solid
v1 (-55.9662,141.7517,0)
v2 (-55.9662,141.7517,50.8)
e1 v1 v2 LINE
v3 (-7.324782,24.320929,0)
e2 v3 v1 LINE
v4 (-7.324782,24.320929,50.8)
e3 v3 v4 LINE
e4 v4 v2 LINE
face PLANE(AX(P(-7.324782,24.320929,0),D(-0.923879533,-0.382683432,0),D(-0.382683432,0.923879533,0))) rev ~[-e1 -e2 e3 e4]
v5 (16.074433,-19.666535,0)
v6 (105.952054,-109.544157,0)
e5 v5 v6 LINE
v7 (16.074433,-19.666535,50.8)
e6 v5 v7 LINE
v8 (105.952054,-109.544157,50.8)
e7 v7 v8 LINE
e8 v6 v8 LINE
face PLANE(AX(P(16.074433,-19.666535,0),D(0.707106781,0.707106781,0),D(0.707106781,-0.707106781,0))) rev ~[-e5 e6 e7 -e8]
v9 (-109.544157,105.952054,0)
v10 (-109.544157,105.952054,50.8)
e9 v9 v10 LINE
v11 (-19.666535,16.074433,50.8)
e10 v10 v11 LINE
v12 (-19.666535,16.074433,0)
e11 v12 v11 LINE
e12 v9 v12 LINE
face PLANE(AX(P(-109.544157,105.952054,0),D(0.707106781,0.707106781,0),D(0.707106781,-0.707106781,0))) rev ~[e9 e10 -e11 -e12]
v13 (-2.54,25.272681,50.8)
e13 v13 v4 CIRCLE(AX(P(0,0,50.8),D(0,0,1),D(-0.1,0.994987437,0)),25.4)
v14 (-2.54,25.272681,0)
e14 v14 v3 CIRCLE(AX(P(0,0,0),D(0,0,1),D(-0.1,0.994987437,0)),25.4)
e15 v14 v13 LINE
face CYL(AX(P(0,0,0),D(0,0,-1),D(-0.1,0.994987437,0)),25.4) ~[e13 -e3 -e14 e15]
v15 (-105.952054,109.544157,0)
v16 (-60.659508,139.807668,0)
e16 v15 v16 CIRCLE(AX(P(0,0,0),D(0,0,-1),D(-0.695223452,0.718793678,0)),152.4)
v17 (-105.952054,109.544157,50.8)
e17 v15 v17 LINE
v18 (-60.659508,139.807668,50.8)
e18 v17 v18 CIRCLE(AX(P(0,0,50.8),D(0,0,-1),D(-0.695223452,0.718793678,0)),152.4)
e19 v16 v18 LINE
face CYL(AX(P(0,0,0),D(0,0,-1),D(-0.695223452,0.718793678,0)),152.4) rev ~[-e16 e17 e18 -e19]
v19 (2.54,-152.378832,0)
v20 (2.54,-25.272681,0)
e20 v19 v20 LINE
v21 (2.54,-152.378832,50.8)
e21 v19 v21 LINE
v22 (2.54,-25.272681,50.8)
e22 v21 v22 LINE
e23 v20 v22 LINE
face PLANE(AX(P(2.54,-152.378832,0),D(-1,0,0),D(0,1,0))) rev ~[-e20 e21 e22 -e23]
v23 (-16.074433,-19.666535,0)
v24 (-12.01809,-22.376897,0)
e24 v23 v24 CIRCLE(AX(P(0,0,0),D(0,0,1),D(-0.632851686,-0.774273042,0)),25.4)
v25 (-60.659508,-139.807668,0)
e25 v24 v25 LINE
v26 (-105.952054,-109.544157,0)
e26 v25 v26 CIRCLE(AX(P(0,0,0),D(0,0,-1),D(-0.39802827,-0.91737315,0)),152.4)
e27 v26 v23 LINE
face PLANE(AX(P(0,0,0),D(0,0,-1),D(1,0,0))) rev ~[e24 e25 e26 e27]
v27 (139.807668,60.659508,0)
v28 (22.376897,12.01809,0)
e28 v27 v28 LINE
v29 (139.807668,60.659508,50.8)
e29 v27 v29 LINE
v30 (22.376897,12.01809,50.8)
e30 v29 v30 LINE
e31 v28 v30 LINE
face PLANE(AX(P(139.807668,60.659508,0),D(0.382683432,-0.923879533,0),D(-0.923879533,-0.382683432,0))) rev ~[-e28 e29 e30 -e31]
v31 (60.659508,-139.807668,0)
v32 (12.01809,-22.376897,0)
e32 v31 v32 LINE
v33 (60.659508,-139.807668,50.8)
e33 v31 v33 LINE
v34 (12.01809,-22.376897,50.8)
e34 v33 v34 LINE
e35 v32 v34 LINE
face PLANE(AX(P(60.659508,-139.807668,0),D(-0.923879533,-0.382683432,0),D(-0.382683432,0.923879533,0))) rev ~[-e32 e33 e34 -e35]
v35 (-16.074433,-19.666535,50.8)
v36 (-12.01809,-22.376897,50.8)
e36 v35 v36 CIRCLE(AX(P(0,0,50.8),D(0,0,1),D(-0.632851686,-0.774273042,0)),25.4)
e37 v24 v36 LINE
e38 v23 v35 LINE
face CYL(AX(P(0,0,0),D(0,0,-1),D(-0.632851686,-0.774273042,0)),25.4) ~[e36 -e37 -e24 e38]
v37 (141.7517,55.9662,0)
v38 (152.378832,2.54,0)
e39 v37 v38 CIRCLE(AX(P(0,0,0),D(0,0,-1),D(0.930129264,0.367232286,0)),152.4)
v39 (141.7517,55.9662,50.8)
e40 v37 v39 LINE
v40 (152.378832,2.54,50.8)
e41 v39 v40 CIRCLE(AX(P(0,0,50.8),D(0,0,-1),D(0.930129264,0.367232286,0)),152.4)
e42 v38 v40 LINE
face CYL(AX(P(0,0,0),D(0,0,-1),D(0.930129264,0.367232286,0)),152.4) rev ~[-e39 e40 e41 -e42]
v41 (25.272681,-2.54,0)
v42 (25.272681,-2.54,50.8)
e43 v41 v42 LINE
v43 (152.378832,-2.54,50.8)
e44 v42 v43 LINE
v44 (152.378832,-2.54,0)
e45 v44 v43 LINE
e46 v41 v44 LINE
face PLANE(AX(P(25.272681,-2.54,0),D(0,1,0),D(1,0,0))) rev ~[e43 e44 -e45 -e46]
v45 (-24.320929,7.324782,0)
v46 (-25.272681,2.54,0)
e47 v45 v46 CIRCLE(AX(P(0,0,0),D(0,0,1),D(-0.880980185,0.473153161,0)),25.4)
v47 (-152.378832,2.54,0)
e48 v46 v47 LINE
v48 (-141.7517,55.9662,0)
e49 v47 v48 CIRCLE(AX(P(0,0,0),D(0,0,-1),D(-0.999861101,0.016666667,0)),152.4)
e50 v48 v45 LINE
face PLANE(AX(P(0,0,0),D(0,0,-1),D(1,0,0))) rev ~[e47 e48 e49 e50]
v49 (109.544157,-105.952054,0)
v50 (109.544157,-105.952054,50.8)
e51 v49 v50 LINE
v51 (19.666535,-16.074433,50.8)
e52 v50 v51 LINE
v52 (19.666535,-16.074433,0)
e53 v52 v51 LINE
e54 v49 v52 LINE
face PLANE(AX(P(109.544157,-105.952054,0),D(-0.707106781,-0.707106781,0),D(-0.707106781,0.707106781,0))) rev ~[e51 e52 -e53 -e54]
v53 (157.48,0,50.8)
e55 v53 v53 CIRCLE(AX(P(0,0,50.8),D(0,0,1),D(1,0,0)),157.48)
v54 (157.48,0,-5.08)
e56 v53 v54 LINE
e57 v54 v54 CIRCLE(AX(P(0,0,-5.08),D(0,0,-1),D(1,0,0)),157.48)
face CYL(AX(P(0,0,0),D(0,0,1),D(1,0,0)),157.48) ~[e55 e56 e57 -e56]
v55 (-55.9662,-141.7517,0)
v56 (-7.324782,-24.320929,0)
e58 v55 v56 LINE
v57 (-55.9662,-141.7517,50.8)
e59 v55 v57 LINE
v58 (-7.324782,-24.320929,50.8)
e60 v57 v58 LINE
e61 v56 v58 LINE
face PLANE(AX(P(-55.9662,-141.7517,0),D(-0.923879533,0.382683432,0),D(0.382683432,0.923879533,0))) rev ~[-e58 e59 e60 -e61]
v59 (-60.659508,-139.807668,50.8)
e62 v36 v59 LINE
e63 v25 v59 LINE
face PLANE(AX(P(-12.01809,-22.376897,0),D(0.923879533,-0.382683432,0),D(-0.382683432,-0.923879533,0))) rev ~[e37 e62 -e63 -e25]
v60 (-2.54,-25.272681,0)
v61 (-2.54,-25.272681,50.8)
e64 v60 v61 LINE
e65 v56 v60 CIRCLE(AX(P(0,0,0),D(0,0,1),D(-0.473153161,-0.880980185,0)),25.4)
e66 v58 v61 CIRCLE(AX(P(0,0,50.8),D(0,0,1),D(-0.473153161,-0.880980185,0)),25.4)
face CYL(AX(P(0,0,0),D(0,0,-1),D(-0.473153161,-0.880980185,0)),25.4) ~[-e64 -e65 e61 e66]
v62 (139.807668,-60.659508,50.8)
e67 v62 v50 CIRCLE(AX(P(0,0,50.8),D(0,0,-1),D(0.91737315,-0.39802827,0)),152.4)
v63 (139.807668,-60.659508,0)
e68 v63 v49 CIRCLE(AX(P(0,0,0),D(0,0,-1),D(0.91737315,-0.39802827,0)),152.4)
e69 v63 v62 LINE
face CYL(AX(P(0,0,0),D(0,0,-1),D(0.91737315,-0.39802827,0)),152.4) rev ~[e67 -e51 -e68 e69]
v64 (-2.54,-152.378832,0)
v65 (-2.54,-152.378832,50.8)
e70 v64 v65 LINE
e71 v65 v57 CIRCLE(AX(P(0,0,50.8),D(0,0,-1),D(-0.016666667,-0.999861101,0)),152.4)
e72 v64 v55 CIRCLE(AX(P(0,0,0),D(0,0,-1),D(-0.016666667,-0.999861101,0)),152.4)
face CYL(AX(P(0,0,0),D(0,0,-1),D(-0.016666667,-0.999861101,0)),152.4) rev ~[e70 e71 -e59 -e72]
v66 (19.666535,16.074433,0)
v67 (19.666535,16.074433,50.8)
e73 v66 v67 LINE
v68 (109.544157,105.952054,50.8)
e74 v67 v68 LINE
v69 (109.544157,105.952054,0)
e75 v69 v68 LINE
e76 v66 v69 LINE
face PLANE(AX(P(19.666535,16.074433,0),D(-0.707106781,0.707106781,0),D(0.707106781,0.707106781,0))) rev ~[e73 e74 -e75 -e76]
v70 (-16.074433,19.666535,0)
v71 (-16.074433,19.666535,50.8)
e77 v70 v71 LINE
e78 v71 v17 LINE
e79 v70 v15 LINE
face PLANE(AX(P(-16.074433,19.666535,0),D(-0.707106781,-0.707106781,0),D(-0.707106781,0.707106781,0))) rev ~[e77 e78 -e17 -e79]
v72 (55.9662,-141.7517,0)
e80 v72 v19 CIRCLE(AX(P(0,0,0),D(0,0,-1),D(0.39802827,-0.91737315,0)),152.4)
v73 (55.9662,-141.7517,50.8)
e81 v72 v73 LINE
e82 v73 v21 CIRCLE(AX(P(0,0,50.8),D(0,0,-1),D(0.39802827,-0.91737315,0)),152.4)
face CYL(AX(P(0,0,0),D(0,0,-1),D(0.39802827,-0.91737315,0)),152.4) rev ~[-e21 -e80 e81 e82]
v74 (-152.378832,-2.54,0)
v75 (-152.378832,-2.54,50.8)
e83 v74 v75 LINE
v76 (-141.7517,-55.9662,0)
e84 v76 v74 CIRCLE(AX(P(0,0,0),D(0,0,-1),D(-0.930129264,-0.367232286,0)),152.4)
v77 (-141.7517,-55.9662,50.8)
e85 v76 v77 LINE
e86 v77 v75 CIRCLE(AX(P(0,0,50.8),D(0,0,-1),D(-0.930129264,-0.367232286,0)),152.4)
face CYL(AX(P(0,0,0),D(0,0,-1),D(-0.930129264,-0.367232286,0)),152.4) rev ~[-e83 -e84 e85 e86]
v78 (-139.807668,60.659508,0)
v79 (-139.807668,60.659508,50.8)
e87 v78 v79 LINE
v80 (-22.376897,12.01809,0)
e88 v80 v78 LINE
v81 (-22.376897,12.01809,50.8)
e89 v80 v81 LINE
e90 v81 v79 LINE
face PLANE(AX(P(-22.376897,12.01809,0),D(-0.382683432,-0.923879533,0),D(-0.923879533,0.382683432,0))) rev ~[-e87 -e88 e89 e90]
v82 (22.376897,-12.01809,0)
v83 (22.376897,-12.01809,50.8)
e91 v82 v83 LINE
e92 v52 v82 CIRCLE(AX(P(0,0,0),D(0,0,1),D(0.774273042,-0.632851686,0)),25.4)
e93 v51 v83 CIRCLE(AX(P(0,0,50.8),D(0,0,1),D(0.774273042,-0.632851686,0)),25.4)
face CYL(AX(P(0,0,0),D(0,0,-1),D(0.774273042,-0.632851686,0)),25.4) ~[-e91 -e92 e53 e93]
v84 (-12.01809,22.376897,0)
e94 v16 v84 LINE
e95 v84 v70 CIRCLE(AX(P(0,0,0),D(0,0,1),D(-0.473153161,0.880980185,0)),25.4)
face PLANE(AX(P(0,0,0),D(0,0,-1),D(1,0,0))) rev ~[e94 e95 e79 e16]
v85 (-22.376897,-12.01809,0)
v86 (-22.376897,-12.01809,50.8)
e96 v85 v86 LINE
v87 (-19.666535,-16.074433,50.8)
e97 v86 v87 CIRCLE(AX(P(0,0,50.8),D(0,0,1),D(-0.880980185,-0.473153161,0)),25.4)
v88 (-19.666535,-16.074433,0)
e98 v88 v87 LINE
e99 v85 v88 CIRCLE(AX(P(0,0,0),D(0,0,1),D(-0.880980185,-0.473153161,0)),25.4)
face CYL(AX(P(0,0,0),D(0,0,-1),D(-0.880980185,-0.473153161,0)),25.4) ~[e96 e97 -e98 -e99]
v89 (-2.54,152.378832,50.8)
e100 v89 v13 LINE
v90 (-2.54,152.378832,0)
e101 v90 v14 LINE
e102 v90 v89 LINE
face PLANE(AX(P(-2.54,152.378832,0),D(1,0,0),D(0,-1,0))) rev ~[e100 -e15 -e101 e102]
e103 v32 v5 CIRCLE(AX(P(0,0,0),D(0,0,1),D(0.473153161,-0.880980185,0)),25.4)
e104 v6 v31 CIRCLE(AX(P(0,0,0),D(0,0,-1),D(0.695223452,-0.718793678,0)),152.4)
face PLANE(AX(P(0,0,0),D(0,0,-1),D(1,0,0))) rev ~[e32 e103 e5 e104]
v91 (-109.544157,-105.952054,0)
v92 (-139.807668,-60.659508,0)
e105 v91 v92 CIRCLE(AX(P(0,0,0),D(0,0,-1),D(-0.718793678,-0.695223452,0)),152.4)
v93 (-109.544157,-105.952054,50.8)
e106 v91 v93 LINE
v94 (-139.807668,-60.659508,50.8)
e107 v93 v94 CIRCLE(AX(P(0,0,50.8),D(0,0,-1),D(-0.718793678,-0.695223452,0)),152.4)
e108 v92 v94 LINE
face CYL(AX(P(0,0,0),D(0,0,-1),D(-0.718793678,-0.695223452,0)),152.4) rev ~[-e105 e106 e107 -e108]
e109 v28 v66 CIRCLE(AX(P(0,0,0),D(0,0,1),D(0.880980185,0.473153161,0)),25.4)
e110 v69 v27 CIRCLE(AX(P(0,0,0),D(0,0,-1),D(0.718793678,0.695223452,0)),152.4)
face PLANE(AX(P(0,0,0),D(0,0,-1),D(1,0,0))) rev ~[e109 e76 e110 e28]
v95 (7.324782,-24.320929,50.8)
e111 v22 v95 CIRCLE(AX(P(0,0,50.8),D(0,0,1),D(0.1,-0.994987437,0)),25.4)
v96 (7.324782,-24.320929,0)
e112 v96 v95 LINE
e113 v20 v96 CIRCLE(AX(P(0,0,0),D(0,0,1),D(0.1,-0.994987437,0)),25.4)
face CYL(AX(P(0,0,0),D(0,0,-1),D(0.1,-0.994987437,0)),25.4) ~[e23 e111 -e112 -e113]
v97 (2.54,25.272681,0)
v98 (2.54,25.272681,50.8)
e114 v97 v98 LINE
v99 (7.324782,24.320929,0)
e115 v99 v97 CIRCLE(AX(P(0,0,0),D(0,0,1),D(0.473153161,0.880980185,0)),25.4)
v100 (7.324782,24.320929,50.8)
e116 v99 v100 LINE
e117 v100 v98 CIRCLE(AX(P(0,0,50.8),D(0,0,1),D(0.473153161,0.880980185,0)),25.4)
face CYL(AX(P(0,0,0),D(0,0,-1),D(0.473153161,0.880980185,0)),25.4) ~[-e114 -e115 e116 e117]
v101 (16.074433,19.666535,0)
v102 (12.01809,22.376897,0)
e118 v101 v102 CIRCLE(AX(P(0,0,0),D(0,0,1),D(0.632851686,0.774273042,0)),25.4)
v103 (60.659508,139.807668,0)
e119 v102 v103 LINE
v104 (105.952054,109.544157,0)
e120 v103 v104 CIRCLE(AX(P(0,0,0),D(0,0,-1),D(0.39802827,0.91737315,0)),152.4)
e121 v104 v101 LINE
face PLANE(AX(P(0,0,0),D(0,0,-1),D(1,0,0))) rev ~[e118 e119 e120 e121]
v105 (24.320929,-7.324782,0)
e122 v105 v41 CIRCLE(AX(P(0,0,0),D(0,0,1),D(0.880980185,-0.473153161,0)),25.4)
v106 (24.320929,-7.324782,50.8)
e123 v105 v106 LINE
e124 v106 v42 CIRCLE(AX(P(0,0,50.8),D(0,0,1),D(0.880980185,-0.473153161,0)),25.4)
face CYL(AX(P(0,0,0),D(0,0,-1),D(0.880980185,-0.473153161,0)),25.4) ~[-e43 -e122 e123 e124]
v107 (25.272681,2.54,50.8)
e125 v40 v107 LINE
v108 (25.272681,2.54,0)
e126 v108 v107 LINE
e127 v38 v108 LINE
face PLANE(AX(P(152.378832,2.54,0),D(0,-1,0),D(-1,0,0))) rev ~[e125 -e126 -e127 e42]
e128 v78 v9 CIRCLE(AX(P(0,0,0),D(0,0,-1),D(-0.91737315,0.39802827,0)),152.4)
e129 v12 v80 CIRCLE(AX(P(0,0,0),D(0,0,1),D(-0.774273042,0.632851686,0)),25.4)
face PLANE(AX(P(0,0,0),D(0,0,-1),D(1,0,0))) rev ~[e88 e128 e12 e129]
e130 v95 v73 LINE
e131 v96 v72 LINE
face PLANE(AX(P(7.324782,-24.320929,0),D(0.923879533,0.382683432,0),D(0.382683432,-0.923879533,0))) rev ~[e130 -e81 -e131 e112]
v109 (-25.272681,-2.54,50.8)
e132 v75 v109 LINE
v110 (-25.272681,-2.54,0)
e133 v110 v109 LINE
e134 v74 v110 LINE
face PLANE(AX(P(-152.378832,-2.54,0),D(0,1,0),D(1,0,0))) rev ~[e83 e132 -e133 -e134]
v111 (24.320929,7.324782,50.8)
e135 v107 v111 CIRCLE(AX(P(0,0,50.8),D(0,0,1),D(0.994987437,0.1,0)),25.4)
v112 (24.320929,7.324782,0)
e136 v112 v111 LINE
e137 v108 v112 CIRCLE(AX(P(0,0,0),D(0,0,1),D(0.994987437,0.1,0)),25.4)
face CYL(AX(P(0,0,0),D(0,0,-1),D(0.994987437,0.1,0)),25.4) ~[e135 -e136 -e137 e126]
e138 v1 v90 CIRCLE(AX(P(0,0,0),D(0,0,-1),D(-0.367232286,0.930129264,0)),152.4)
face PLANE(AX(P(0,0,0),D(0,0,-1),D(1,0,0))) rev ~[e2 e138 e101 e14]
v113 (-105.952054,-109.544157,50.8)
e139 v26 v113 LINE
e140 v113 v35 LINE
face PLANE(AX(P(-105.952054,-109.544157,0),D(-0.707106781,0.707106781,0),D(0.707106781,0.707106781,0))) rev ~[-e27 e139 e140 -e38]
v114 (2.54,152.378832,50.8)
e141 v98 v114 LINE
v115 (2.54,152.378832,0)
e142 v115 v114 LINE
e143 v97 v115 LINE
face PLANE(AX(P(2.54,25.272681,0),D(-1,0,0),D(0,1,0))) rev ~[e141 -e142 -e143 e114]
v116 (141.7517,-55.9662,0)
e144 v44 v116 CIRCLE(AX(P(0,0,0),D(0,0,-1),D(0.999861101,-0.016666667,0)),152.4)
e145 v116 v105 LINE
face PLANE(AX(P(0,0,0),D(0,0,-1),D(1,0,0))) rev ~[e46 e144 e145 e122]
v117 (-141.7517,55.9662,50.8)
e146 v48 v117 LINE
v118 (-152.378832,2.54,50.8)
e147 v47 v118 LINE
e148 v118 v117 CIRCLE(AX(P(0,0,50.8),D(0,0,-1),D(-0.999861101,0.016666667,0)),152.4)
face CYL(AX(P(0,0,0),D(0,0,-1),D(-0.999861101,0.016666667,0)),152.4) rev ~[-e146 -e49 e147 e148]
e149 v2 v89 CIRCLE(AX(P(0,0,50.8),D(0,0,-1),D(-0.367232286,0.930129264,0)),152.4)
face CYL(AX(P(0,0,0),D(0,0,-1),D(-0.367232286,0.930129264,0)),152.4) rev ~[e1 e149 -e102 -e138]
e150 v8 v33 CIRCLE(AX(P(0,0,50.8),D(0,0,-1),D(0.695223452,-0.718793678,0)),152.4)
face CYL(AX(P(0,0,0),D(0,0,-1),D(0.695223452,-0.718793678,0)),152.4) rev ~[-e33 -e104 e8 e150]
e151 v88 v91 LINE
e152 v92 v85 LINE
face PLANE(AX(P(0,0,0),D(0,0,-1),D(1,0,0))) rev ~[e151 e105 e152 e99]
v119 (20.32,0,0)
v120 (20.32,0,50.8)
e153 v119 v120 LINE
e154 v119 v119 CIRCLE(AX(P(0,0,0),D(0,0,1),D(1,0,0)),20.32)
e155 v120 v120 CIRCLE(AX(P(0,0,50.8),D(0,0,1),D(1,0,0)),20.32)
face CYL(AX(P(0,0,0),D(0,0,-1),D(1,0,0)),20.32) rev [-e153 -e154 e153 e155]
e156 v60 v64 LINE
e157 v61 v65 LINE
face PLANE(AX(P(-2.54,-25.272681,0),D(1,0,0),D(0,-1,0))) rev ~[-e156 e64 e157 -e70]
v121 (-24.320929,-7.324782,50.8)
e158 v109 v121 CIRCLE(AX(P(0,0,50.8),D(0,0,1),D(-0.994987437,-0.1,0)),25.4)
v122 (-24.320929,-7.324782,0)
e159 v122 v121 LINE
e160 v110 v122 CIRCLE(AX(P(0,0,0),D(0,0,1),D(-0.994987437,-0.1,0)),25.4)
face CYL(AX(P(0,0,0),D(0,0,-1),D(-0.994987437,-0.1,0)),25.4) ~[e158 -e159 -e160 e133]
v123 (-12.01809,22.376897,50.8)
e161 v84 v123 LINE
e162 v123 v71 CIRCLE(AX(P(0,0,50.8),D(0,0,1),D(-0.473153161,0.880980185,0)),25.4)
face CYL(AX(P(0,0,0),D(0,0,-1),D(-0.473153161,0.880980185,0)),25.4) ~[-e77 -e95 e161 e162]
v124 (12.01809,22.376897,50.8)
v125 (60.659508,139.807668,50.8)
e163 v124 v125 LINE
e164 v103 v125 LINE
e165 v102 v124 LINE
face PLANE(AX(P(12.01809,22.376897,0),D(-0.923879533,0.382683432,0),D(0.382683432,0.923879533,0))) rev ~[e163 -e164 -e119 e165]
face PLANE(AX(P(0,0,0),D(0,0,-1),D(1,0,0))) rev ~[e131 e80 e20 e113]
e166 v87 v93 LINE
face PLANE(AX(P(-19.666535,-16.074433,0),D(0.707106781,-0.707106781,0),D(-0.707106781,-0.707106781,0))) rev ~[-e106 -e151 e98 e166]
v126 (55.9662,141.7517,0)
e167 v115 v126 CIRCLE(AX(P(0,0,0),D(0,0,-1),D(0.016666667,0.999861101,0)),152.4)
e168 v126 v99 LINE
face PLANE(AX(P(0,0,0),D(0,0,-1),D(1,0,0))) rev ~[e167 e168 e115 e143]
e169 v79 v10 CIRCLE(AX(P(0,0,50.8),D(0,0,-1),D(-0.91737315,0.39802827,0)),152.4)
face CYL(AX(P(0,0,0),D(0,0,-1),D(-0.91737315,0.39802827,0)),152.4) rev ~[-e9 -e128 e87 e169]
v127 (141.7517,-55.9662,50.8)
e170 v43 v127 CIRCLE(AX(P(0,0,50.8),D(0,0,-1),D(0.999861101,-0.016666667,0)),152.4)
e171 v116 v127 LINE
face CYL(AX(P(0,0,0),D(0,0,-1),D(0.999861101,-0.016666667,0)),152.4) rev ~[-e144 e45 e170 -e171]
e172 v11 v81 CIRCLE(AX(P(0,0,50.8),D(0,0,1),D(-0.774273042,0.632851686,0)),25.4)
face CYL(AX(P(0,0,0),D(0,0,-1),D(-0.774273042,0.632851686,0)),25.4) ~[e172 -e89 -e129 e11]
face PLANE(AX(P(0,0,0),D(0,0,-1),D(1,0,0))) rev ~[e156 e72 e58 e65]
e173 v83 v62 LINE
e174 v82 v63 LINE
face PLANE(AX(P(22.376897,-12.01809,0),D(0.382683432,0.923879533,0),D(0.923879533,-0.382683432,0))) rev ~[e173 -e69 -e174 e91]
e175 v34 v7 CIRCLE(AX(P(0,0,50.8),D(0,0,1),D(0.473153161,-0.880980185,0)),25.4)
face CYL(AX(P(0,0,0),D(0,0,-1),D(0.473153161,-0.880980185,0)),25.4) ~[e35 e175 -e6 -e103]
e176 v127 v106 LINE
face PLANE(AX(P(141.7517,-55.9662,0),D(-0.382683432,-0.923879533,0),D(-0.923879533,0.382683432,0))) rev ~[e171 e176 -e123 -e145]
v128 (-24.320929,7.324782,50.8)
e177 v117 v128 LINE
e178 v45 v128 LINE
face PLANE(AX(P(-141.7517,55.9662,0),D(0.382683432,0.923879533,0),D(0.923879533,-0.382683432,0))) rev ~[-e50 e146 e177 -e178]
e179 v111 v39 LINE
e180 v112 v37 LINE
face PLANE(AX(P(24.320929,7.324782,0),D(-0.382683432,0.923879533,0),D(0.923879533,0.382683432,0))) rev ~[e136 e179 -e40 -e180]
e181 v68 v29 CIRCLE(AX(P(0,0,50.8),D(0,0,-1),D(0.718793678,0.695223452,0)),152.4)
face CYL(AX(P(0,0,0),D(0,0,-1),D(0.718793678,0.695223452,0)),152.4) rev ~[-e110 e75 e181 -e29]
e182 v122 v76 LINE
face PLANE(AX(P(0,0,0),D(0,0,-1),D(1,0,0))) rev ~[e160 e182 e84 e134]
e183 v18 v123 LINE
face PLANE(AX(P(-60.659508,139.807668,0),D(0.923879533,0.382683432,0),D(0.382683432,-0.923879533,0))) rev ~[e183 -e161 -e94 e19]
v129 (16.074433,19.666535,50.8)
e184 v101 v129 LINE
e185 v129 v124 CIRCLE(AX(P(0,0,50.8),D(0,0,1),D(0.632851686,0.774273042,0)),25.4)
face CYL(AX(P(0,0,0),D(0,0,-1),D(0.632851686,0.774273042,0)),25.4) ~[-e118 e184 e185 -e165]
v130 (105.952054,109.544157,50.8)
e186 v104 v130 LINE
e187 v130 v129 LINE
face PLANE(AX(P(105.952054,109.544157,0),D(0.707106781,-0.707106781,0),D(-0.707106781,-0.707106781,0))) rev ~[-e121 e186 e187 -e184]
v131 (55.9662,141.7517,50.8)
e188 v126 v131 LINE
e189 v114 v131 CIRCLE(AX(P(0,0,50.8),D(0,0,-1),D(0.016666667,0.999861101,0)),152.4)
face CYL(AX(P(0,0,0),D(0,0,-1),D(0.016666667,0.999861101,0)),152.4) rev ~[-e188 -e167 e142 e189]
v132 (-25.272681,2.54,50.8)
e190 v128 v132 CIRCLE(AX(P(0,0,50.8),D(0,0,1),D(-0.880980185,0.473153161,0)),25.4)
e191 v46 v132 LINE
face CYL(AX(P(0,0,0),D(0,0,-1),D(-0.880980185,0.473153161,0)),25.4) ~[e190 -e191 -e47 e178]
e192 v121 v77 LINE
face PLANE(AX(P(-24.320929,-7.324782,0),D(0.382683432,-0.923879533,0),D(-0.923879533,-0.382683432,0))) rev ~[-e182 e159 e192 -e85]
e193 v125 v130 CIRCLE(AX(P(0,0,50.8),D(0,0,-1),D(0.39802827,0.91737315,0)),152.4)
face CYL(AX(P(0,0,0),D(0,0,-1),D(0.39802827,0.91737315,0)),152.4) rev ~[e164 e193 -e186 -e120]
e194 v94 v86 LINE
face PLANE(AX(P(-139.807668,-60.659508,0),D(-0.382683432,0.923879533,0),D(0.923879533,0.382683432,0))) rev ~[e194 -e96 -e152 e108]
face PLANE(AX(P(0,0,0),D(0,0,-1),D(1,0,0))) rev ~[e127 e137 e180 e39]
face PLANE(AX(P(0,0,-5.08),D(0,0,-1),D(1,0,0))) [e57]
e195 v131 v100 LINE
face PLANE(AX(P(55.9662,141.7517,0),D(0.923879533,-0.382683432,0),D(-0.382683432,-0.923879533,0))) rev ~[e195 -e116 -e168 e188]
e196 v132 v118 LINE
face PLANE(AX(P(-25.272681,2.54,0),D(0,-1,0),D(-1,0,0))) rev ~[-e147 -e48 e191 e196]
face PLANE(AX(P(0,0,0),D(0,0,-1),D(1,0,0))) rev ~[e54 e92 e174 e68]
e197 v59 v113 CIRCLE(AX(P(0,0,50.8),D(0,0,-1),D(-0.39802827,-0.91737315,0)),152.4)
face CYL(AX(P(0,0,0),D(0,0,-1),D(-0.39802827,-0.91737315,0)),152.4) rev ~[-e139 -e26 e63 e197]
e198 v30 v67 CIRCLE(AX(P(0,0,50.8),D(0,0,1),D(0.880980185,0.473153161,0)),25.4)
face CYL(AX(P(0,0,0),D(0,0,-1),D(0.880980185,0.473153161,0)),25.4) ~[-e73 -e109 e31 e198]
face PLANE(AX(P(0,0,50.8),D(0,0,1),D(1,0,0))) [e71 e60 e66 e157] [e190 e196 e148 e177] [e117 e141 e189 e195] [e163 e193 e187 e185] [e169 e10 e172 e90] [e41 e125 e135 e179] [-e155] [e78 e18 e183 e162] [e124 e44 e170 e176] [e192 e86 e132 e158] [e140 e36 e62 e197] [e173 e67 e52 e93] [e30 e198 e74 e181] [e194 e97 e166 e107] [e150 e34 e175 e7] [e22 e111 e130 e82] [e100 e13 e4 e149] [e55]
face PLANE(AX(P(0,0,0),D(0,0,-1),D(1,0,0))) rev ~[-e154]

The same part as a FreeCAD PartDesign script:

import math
import FreeCAD as App
import Part
import Sketcher

V = App.Vector
Q = App.Units.Quantity

doc = App.newDocument("Part")
params = doc.addObject("Spreadsheet::Sheet", "Params")
for row, (alias, value) in enumerate([
    ("sketch1_radius", "6 in"),
    ("sketch1_radius2", "1 in"),
    ("sketch1_diameter", "12.4 in"),
    ("sketch1_diameter2", "1.6 in"),
    ("pad1_length", "2 in"),
    ("sketch2_diameter", "12.4 in"),
    ("pad2_length", "0.2 in"),
], start=1):
    params.set(f"A{row}", alias)
    params.set(f"B{row}", "=" + value)
    params.setAlias(f"B{row}", alias)

body = doc.addObject("PartDesign::Body", "Body")

sketch1 = body.newObject("Sketcher::SketchObject", "Sketch")
sketch1.AttachmentSupport = (doc.getObject("XY_Plane"), [""])
sketch1.MapMode = "FlatFace"
sketch1.addGeometry([
    Part.Circle(V(0, 0, 0), V(0, 0, 1), 157.5),
    Part.LineSegment(V(-12, -22.4, 0), V(-60.7, -139.8, 0)),
    Part.ArcOfCircle(Part.Circle(V(0, 0, 0), V(0, 0, 1), 152.4), math.radians(-134), math.radians(-113)),
    Part.LineSegment(V(-106, -109.5, 0), V(-16.1, -19.7, 0)),
    Part.ArcOfCircle(Part.Circle(V(0, 0, 0), V(0, 0, 1), 25.4), math.radians(-129.26), math.radians(-118.24)),
    Part.LineSegment(V(-2.5, -25.3, 0), V(-2.5, -152.4, 0)),
    Part.ArcOfCircle(Part.Circle(V(0, 0, 0), V(0, 0, 1), 152.4), math.radians(-112), math.radians(-91)),
    Part.LineSegment(V(-56, -141.8, 0), V(-7.3, -24.3, 0)),
    Part.ArcOfCircle(Part.Circle(V(0, 0, 0), V(0, 0, 1), 25.4), math.radians(-106.76), math.radians(-95.74)),
    Part.LineSegment(V(-19.7, -16.1, 0), V(-109.5, -106, 0)),
    Part.ArcOfCircle(Part.Circle(V(0, 0, 0), V(0, 0, 1), 152.4), math.radians(-157), math.radians(-136)),
    Part.LineSegment(V(-139.8, -60.7, 0), V(-22.4, -12, 0)),
    Part.ArcOfCircle(Part.Circle(V(0, 0, 0), V(0, 0, 1), 25.4), math.radians(-151.76), math.radians(-140.74)),
    Part.LineSegment(V(-24.3, -7.3, 0), V(-141.8, -56, 0)),
    Part.ArcOfCircle(Part.Circle(V(0, 0, 0), V(0, 0, 1), 152.4), math.radians(-179), math.radians(-158)),
    Part.LineSegment(V(-152.4, -2.5, 0), V(-25.3, -2.5, 0)),
    Part.ArcOfCircle(Part.Circle(V(0, 0, 0), V(0, 0, 1), 25.4), math.radians(-174.26), math.radians(-163.24)),
    Part.LineSegment(V(7.3, -24.3, 0), V(56, -141.8, 0)),
    Part.ArcOfCircle(Part.Circle(V(0, 0, 0), V(0, 0, 1), 152.4), math.radians(-89), math.radians(-68)),
    Part.LineSegment(V(2.5, -152.4, 0), V(2.5, -25.3, 0)),
    Part.ArcOfCircle(Part.Circle(V(0, 0, 0), V(0, 0, 1), 25.4), math.radians(-84.26), math.radians(-73.24)),
    Part.LineSegment(V(16.1, -19.7, 0), V(106, -109.5, 0)),
    Part.ArcOfCircle(Part.Circle(V(0, 0, 0), V(0, 0, 1), 152.4), math.radians(-67), math.radians(-46)),
    Part.LineSegment(V(60.7, -139.8, 0), V(12, -22.4, 0)),
    Part.ArcOfCircle(Part.Circle(V(0, 0, 0), V(0, 0, 1), 25.4), math.radians(-61.76), math.radians(-50.74)),
    Part.LineSegment(V(22.4, -12, 0), V(139.8, -60.7, 0)),
    Part.ArcOfCircle(Part.Circle(V(0, 0, 0), V(0, 0, 1), 152.4), math.radians(-44), math.radians(-23)),
    Part.LineSegment(V(109.5, -106, 0), V(19.7, -16.1, 0)),
    Part.ArcOfCircle(Part.Circle(V(0, 0, 0), V(0, 0, 1), 25.4), math.radians(-39.26), math.radians(-28.24)),
    Part.LineSegment(V(25.3, -2.5, 0), V(152.4, -2.5, 0)),
    Part.ArcOfCircle(Part.Circle(V(0, 0, 0), V(0, 0, 1), 152.4), math.radians(-22), math.radians(-1)),
    Part.LineSegment(V(141.8, -56, 0), V(24.3, -7.3, 0)),
    Part.ArcOfCircle(Part.Circle(V(0, 0, 0), V(0, 0, 1), 25.4), math.radians(-16.76), math.radians(-5.74)),
    Part.LineSegment(V(-25.3, 2.5, 0), V(-152.4, 2.5, 0)),
    Part.ArcOfCircle(Part.Circle(V(0, 0, 0), V(0, 0, 1), 152.4), math.radians(158), math.radians(179)),
    Part.LineSegment(V(-141.8, 56, 0), V(-24.3, 7.3, 0)),
    Part.ArcOfCircle(Part.Circle(V(0, 0, 0), V(0, 0, 1), 25.4), math.radians(163.24), math.radians(174.26)),
    Part.LineSegment(V(-22.4, 12, 0), V(-139.8, 60.7, 0)),
    Part.ArcOfCircle(Part.Circle(V(0, 0, 0), V(0, 0, 1), 152.4), math.radians(136), math.radians(157)),
    Part.LineSegment(V(-109.5, 106, 0), V(-19.7, 16.1, 0)),
    Part.ArcOfCircle(Part.Circle(V(0, 0, 0), V(0, 0, 1), 25.4), math.radians(140.74), math.radians(151.76)),
    Part.Circle(V(0, 0, 0), V(0, 0, 1), 20.3),
    Part.LineSegment(V(-16.1, 19.7, 0), V(-106, 109.5, 0)),
    Part.ArcOfCircle(Part.Circle(V(0, 0, 0), V(0, 0, 1), 152.4), math.radians(113), math.radians(134)),
    Part.LineSegment(V(-60.7, 139.8, 0), V(-12, 22.4, 0)),
    Part.ArcOfCircle(Part.Circle(V(0, 0, 0), V(0, 0, 1), 25.4), math.radians(118.24), math.radians(129.26)),
    Part.LineSegment(V(-7.3, 24.3, 0), V(-56, 141.8, 0)),
    Part.ArcOfCircle(Part.Circle(V(0, 0, 0), V(0, 0, 1), 152.4), math.radians(91), math.radians(112)),
    Part.LineSegment(V(-2.5, 152.4, 0), V(-2.5, 25.3, 0)),
    Part.ArcOfCircle(Part.Circle(V(0, 0, 0), V(0, 0, 1), 25.4), math.radians(95.74), math.radians(106.76)),
    Part.ArcOfCircle(Part.Circle(V(0, 0, 0), V(0, 0, 1), 152.4), math.radians(1), math.radians(22)),
    Part.LineSegment(V(152.4, 2.5, 0), V(25.3, 2.5, 0)),
    Part.ArcOfCircle(Part.Circle(V(0, 0, 0), V(0, 0, 1), 25.4), math.radians(5.74), math.radians(16.76)),
    Part.LineSegment(V(24.3, 7.3, 0), V(141.8, 56, 0)),
    Part.LineSegment(V(19.7, 16.1, 0), V(109.5, 106, 0)),
    Part.ArcOfCircle(Part.Circle(V(0, 0, 0), V(0, 0, 1), 152.4), math.radians(23), math.radians(44)),
    Part.LineSegment(V(139.8, 60.7, 0), V(22.4, 12, 0)),
    Part.ArcOfCircle(Part.Circle(V(0, 0, 0), V(0, 0, 1), 25.4), math.radians(28.24), math.radians(39.26)),
    Part.LineSegment(V(2.5, 25.3, 0), V(2.5, 152.4, 0)),
    Part.ArcOfCircle(Part.Circle(V(0, 0, 0), V(0, 0, 1), 152.4), math.radians(68), math.radians(89)),
    Part.LineSegment(V(56, 141.8, 0), V(7.3, 24.3, 0)),
    Part.ArcOfCircle(Part.Circle(V(0, 0, 0), V(0, 0, 1), 25.4), math.radians(73.24), math.radians(84.26)),
    Part.LineSegment(V(12, 22.4, 0), V(60.7, 139.8, 0)),
    Part.ArcOfCircle(Part.Circle(V(0, 0, 0), V(0, 0, 1), 152.4), math.radians(46), math.radians(67)),
    Part.LineSegment(V(106, 109.5, 0), V(16.1, 19.7, 0)),
    Part.ArcOfCircle(Part.Circle(V(0, 0, 0), V(0, 0, 1), 25.4), math.radians(50.74), math.radians(61.76)),
], False)
sketch1.addConstraint([
    Sketcher.Constraint("Coincident", 1, 2, 2, 2),
    Sketcher.Constraint("Coincident", 2, 1, 3, 1),
    Sketcher.Constraint("Coincident", 3, 2, 4, 1),
    Sketcher.Constraint("Coincident", 4, 2, 1, 1),
    Sketcher.Constraint("Coincident", 5, 2, 6, 2),
    Sketcher.Constraint("Coincident", 6, 1, 7, 1),
    Sketcher.Constraint("Coincident", 7, 2, 8, 1),
    Sketcher.Constraint("Coincident", 8, 2, 5, 1),
    Sketcher.Constraint("Coincident", 9, 2, 10, 2),
    Sketcher.Constraint("Coincident", 10, 1, 11, 1),
    Sketcher.Constraint("Coincident", 11, 2, 12, 1),
    Sketcher.Constraint("Coincident", 12, 2, 9, 1),
    Sketcher.Constraint("Coincident", 13, 2, 14, 2),
    Sketcher.Constraint("Coincident", 14, 1, 15, 1),
    Sketcher.Constraint("Coincident", 15, 2, 16, 1),
    Sketcher.Constraint("Coincident", 16, 2, 13, 1),
    Sketcher.Constraint("Coincident", 17, 2, 18, 2),
    Sketcher.Constraint("Coincident", 18, 1, 19, 1),
    Sketcher.Constraint("Coincident", 19, 2, 20, 1),
    Sketcher.Constraint("Coincident", 20, 2, 17, 1),
    Sketcher.Constraint("Coincident", 21, 2, 22, 2),
    Sketcher.Constraint("Coincident", 22, 1, 23, 1),
    Sketcher.Constraint("Coincident", 23, 2, 24, 1),
    Sketcher.Constraint("Coincident", 24, 2, 21, 1),
    Sketcher.Constraint("Coincident", 25, 2, 26, 2),
    Sketcher.Constraint("Coincident", 26, 1, 27, 1),
    Sketcher.Constraint("Coincident", 27, 2, 28, 1),
    Sketcher.Constraint("Coincident", 28, 2, 25, 1),
    Sketcher.Constraint("Coincident", 29, 2, 30, 2),
    Sketcher.Constraint("Coincident", 30, 1, 31, 1),
    Sketcher.Constraint("Coincident", 31, 2, 32, 1),
    Sketcher.Constraint("Coincident", 32, 2, 29, 1),
    Sketcher.Constraint("Coincident", 33, 2, 34, 2),
    Sketcher.Constraint("Coincident", 34, 1, 35, 1),
    Sketcher.Constraint("Coincident", 35, 2, 36, 1),
    Sketcher.Constraint("Coincident", 36, 2, 33, 1),
    Sketcher.Constraint("Coincident", 37, 2, 38, 2),
    Sketcher.Constraint("Coincident", 38, 1, 39, 1),
    Sketcher.Constraint("Coincident", 39, 2, 40, 1),
    Sketcher.Constraint("Coincident", 40, 2, 37, 1),
    Sketcher.Constraint("Coincident", 42, 2, 43, 2),
    Sketcher.Constraint("Coincident", 43, 1, 44, 1),
    Sketcher.Constraint("Coincident", 44, 2, 45, 1),
    Sketcher.Constraint("Coincident", 45, 2, 42, 1),
    Sketcher.Constraint("Coincident", 46, 2, 47, 2),
    Sketcher.Constraint("Coincident", 47, 1, 48, 1),
    Sketcher.Constraint("Coincident", 48, 2, 49, 1),
    Sketcher.Constraint("Coincident", 49, 2, 46, 1),
    Sketcher.Constraint("Coincident", 50, 1, 51, 1),
    Sketcher.Constraint("Coincident", 51, 2, 52, 1),
    Sketcher.Constraint("Coincident", 52, 2, 53, 1),
    Sketcher.Constraint("Coincident", 53, 2, 50, 2),
    Sketcher.Constraint("Coincident", 54, 2, 55, 2),
    Sketcher.Constraint("Coincident", 55, 1, 56, 1),
    Sketcher.Constraint("Coincident", 56, 2, 57, 1),
    Sketcher.Constraint("Coincident", 57, 2, 54, 1),
    Sketcher.Constraint("Coincident", 58, 2, 59, 2),
    Sketcher.Constraint("Coincident", 59, 1, 60, 1),
    Sketcher.Constraint("Coincident", 60, 2, 61, 1),
    Sketcher.Constraint("Coincident", 61, 2, 58, 1),
    Sketcher.Constraint("Coincident", 62, 2, 63, 2),
    Sketcher.Constraint("Coincident", 63, 1, 64, 1),
    Sketcher.Constraint("Coincident", 64, 2, 65, 1),
    Sketcher.Constraint("Coincident", 65, 2, 62, 1),
    Sketcher.Constraint("Vertical", 5),
    Sketcher.Constraint("Horizontal", 15),
    Sketcher.Constraint("Vertical", 19),
    Sketcher.Constraint("Horizontal", 29),
    Sketcher.Constraint("Horizontal", 33),
    Sketcher.Constraint("Vertical", 48),
    Sketcher.Constraint("Horizontal", 51),
    Sketcher.Constraint("Vertical", 58),
    Sketcher.Constraint("Coincident", 0, 3, -1, 1),
    Sketcher.Constraint("Coincident", 2, 3, -1, 1),
    Sketcher.Constraint("Coincident", 4, 3, -1, 1),
    Sketcher.Constraint("Coincident", 6, 3, -1, 1),
    Sketcher.Constraint("Coincident", 8, 3, -1, 1),
    Sketcher.Constraint("Coincident", 10, 3, -1, 1),
    Sketcher.Constraint("Coincident", 12, 3, -1, 1),
    Sketcher.Constraint("Coincident", 14, 3, -1, 1),
    Sketcher.Constraint("Coincident", 16, 3, -1, 1),
    Sketcher.Constraint("Coincident", 18, 3, -1, 1),
    Sketcher.Constraint("Coincident", 20, 3, -1, 1),
    Sketcher.Constraint("Coincident", 22, 3, -1, 1),
    Sketcher.Constraint("Coincident", 24, 3, -1, 1),
    Sketcher.Constraint("Coincident", 26, 3, -1, 1),
    Sketcher.Constraint("Coincident", 28, 3, -1, 1),
    Sketcher.Constraint("Coincident", 30, 3, -1, 1),
    Sketcher.Constraint("Coincident", 32, 3, -1, 1),
    Sketcher.Constraint("Coincident", 34, 3, -1, 1),
    Sketcher.Constraint("Coincident", 36, 3, -1, 1),
    Sketcher.Constraint("Coincident", 38, 3, -1, 1),
    Sketcher.Constraint("Coincident", 40, 3, -1, 1),
    Sketcher.Constraint("Coincident", 41, 3, -1, 1),
    Sketcher.Constraint("Coincident", 43, 3, -1, 1),
    Sketcher.Constraint("Coincident", 45, 3, -1, 1),
    Sketcher.Constraint("Coincident", 47, 3, -1, 1),
    Sketcher.Constraint("Coincident", 49, 3, -1, 1),
    Sketcher.Constraint("Coincident", 50, 3, -1, 1),
    Sketcher.Constraint("Coincident", 52, 3, -1, 1),
    Sketcher.Constraint("Coincident", 55, 3, -1, 1),
    Sketcher.Constraint("Coincident", 57, 3, -1, 1),
    Sketcher.Constraint("Coincident", 59, 3, -1, 1),
    Sketcher.Constraint("Coincident", 61, 3, -1, 1),
    Sketcher.Constraint("Coincident", 63, 3, -1, 1),
    Sketcher.Constraint("Coincident", 65, 3, -1, 1),
    Sketcher.Constraint("Equal", 2, 6),
    Sketcher.Constraint("Equal", 4, 8),
    Sketcher.Constraint("Equal", 6, 10),
    Sketcher.Constraint("Equal", 8, 12),
    Sketcher.Constraint("Equal", 10, 14),
    Sketcher.Constraint("Equal", 12, 16),
    Sketcher.Constraint("Equal", 14, 18),
    Sketcher.Constraint("Equal", 16, 20),
    Sketcher.Constraint("Equal", 18, 22),
    Sketcher.Constraint("Equal", 20, 24),
    Sketcher.Constraint("Equal", 22, 26),
    Sketcher.Constraint("Equal", 24, 28),
    Sketcher.Constraint("Equal", 26, 30),
    Sketcher.Constraint("Equal", 28, 32),
    Sketcher.Constraint("Equal", 30, 34),
    Sketcher.Constraint("Equal", 32, 36),
    Sketcher.Constraint("Equal", 34, 38),
    Sketcher.Constraint("Equal", 36, 40),
    Sketcher.Constraint("Equal", 38, 43),
    Sketcher.Constraint("Equal", 40, 45),
    Sketcher.Constraint("Equal", 43, 47),
    Sketcher.Constraint("Equal", 45, 49),
    Sketcher.Constraint("Equal", 47, 50),
    Sketcher.Constraint("Equal", 49, 52),
    Sketcher.Constraint("Equal", 50, 55),
    Sketcher.Constraint("Equal", 52, 57),
    Sketcher.Constraint("Equal", 55, 59),
    Sketcher.Constraint("Equal", 57, 61),
    Sketcher.Constraint("Equal", 59, 63),
    Sketcher.Constraint("Equal", 61, 65),
    Sketcher.Constraint("Parallel", 1, 7),
    Sketcher.Constraint("Parallel", 3, 9),
    Sketcher.Constraint("Parallel", 11, 13),
    Sketcher.Constraint("Perpendicular", 13, 17),
    Sketcher.Constraint("Perpendicular", 9, 21),
    Sketcher.Constraint("Parallel", 17, 23),
    Sketcher.Constraint("Perpendicular", 7, 25),
    Sketcher.Constraint("Parallel", 21, 27),
    Sketcher.Constraint("Parallel", 25, 31),
    Sketcher.Constraint("Parallel", 31, 35),
    Sketcher.Constraint("Parallel", 35, 37),
    Sketcher.Constraint("Parallel", 27, 39),
    Sketcher.Constraint("Parallel", 39, 42),
    Sketcher.Constraint("Parallel", 23, 44),
    Sketcher.Constraint("Parallel", 44, 46),
    Sketcher.Constraint("Perpendicular", 46, 53),
    Sketcher.Constraint("Perpendicular", 42, 54),
    Sketcher.Constraint("Parallel", 53, 56),
    Sketcher.Constraint("Perpendicular", 37, 60),
    Sketcher.Constraint("Parallel", 60, 62),
    Sketcher.Constraint("Parallel", 54, 64),
    Sketcher.Constraint("Horizontal", 6, 1, 17, 2),
    Sketcher.Constraint("Horizontal", 5, 2, 18, 1),
    Sketcher.Constraint("Horizontal", 7, 2, 20, 2),
    Sketcher.Constraint("Horizontal", 2, 1, 21, 2),
    Sketcher.Constraint("Horizontal", 1, 2, 22, 1),
    Sketcher.Constraint("Horizontal", 3, 2, 24, 2),
    Sketcher.Constraint("Horizontal", 10, 1, 25, 2),
    Sketcher.Constraint("Horizontal", 9, 2, 26, 1),
    Sketcher.Constraint("Horizontal", 15, 2, 29, 2),
    Sketcher.Constraint("Horizontal", 13, 2, 30, 1),
    Sketcher.Constraint("Horizontal", 36, 2, 50, 1),
    Sketcher.Constraint("Horizontal", 35, 2, 52, 2),
    Sketcher.Constraint("Horizontal", 38, 1, 54, 2),
    Sketcher.Constraint("Horizontal", 37, 2, 55, 1),
    Sketcher.Constraint("Horizontal", 47, 1, 58, 2),
    Sketcher.Constraint("Horizontal", 46, 2, 59, 1),
    Sketcher.Constraint("Horizontal", 43, 1, 62, 2),
    Sketcher.Constraint("Horizontal", 42, 2, 63, 1),
    Sketcher.Constraint("Vertical", 14, 1, 33, 2),
    Sketcher.Constraint("Vertical", 13, 2, 34, 1),
    Sketcher.Constraint("Vertical", 10, 1, 37, 2),
    Sketcher.Constraint("Vertical", 9, 2, 38, 1),
    Sketcher.Constraint("Vertical", 2, 1, 42, 2),
    Sketcher.Constraint("Vertical", 1, 2, 43, 1),
    Sketcher.Constraint("Vertical", 6, 1, 46, 2),
    Sketcher.Constraint("Vertical", 8, 2, 47, 1),
    Sketcher.Constraint("Equal", 51, 5),
    Sketcher.Constraint("Equal", 1, 3),
    Sketcher.Constraint("Equal", 3, 7),
    Sketcher.Constraint("Equal", 7, 9),
    Sketcher.Constraint("Equal", 9, 11),
    Sketcher.Constraint("Equal", 11, 13),
    Sketcher.Constraint("Radius", 2, Q("6 in")),
    Sketcher.Constraint("Radius", 4, Q("1 in")),
    Sketcher.Constraint("Diameter", 0, Q("12.4 in")),
    Sketcher.Constraint("Diameter", 41, Q("1.6 in")),
    Sketcher.Constraint("DistanceX", 5, 2, -1, 1, Q("0.1 in")),
    Sketcher.Constraint("Angle", 1, Q("-112.5 deg")),
    Sketcher.Constraint("DistanceX", 13, 2, -1, 1, 141.7517),
])
sketch1.setExpression("Constraints[189]", "Params.sketch1_radius")
sketch1.setExpression("Constraints[190]", "Params.sketch1_radius2")
sketch1.setExpression("Constraints[191]", "Params.sketch1_diameter")
sketch1.setExpression("Constraints[192]", "Params.sketch1_diameter2")
pad1 = body.newObject("PartDesign::Pad", "Pad")
pad1.Profile = sketch1
pad1.setExpression("Length", "Params.pad1_length")

sketch2 = body.newObject("Sketcher::SketchObject", "Sketch001")
sketch2.AttachmentSupport = (doc.getObject("XY_Plane"), [""])
sketch2.MapMode = "FlatFace"
sketch2.addGeometry(Part.Circle(V(0, 0, 0), V(0, 0, 1), 157), False)
sketch2.addConstraint([
    Sketcher.Constraint("Coincident", 0, 3, -1, 1),
    Sketcher.Constraint("Diameter", 0, Q("12.4 in")),
])
sketch2.setExpression("Constraints[1]", "Params.sketch2_diameter")
pad2 = body.newObject("PartDesign::Pad", "Pad001")
pad2.Profile = sketch2
pad2.setExpression("Length", "Params.pad2_length")
pad2.Reversed = True

doc.recompute()
